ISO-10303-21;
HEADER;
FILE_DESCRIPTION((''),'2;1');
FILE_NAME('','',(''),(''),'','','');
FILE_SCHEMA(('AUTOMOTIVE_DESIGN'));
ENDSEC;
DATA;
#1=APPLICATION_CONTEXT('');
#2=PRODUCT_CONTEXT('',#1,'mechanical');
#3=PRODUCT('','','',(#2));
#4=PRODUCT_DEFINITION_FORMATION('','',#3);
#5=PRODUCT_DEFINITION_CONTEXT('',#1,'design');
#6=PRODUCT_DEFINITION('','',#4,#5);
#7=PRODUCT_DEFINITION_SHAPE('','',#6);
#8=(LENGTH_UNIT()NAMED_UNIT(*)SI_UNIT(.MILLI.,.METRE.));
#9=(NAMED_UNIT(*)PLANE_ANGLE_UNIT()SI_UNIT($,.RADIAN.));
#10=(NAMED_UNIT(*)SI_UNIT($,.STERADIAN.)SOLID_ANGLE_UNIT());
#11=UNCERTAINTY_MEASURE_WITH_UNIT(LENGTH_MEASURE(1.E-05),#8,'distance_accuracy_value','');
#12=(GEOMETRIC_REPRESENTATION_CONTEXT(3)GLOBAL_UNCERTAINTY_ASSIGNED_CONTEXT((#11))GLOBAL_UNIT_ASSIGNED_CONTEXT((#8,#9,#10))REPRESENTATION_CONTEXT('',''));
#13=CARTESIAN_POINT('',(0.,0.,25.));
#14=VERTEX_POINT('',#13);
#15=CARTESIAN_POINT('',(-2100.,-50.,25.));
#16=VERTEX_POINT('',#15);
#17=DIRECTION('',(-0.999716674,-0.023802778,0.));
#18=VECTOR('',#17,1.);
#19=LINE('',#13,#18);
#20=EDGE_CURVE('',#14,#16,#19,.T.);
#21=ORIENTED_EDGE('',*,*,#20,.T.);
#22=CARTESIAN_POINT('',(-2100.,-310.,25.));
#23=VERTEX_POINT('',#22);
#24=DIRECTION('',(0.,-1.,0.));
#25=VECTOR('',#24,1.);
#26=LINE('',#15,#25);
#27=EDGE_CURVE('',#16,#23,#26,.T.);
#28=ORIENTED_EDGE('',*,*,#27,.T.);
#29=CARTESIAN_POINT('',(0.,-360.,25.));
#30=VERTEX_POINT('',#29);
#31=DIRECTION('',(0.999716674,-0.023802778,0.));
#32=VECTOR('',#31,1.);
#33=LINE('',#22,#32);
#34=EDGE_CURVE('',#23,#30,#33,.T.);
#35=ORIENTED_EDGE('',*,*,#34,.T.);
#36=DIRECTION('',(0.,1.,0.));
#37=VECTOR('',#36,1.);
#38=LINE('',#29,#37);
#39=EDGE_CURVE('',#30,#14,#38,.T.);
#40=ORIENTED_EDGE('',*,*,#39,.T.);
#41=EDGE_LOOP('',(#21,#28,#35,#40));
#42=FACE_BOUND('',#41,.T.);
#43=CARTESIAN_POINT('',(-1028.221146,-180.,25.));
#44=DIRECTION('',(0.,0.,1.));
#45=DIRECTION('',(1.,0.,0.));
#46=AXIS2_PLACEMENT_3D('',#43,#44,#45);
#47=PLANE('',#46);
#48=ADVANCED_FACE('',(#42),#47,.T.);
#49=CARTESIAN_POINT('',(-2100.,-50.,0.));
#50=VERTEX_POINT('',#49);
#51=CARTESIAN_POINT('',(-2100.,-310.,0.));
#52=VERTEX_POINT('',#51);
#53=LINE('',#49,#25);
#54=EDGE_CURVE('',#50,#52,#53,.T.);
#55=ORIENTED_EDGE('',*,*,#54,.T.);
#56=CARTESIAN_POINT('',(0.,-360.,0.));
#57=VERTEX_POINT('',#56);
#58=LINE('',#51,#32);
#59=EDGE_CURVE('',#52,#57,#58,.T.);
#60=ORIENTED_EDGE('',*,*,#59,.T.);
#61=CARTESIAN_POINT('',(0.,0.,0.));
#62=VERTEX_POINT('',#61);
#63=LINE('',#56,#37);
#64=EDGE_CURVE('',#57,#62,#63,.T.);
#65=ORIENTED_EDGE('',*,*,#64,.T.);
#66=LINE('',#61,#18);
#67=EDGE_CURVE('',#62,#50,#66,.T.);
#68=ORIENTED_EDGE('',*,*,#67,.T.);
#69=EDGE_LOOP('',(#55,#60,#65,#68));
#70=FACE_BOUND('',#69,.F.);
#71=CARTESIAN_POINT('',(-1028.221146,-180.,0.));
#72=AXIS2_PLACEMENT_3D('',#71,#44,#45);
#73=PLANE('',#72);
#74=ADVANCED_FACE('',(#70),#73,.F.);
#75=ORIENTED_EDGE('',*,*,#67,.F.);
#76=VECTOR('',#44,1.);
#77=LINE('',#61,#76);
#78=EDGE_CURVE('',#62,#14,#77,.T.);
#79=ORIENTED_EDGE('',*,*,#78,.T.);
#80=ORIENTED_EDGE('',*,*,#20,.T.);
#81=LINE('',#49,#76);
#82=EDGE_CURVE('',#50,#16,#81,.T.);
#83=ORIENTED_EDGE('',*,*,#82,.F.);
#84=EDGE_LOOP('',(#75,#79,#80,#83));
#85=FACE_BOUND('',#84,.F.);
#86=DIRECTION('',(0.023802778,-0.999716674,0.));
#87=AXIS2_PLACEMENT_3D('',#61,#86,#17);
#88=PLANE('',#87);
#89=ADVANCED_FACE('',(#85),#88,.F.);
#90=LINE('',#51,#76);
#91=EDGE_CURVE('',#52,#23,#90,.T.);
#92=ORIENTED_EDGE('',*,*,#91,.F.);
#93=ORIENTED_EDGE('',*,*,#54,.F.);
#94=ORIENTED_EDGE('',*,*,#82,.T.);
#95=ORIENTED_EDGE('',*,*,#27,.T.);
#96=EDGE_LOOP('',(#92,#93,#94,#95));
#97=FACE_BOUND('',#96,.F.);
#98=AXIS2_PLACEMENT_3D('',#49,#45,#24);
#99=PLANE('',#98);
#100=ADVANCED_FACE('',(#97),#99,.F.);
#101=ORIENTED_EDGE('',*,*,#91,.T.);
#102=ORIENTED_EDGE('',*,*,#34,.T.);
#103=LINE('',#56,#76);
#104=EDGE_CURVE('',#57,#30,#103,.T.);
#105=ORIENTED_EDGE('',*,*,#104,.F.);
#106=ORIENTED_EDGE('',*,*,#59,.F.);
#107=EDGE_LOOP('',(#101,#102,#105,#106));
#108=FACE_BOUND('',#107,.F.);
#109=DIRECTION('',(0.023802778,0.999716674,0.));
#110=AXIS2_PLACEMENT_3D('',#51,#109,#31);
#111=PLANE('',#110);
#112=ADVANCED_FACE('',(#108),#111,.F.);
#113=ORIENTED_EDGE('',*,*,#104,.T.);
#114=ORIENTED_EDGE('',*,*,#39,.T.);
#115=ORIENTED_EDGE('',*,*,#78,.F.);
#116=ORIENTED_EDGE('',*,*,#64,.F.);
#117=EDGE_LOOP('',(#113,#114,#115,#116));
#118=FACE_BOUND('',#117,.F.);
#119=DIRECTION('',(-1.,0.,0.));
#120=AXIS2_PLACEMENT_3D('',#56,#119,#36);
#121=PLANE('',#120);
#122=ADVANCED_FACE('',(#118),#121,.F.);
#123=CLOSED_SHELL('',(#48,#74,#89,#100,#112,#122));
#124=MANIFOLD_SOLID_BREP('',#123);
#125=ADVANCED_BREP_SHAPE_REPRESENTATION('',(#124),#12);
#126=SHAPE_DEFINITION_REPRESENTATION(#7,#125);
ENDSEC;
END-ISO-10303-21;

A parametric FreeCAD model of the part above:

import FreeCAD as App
import Part
import Sketcher

V = App.Vector

doc = App.newDocument("Part")
body = doc.addObject("PartDesign::Body", "Body")

# Sketch on XY plane
sketch1 = doc.addObject("Sketcher::SketchObject", "Sketch")
body.addObject(sketch1)
sketch1.AttachmentSupport = (doc.XY_Plane, [""])
sketch1.MapMode = "FlatFace"
sketch1.addGeometry(Part.LineSegment(V(0, -360, 0), V(0, 0, 0)), False)
sketch1.addGeometry(Part.LineSegment(V(0, 0, 0), V(-2100, -50, 0)), False)
sketch1.addGeometry(Part.LineSegment(V(-2100, -50, 0), V(-2100, -310, 0)), False)
sketch1.addGeometry(Part.LineSegment(V(-2100, -310, 0), V(0, -360, 0)), False)
sketch1.addConstraint(Sketcher.Constraint("Coincident", 0, 2, 1, 1))
sketch1.addConstraint(Sketcher.Constraint("Coincident", 1, 2, 2, 1))
sketch1.addConstraint(Sketcher.Constraint("Coincident", 2, 2, 3, 1))
sketch1.addConstraint(Sketcher.Constraint("Coincident", 3, 2, 0, 1))
sketch1.addConstraint(Sketcher.Constraint("Vertical", 0))
sketch1.addConstraint(Sketcher.Constraint("Vertical", 2))
sketch1.addConstraint(Sketcher.Constraint("Coincident", 0, 2, -1, 1))
sketch1.addConstraint(Sketcher.Constraint("Equal", 1, 3))
sketch1.addConstraint(Sketcher.Constraint("DistanceY", 0, 1, 0, 2, 360.0))
sketch1.addConstraint(Sketcher.Constraint("DistanceY", 2, 2, 2, 1, 260.0))
sketch1.addConstraint(Sketcher.Constraint("DistanceX", 1, 2, -1, 1, 2100.0))
pad1 = doc.addObject("PartDesign::Pad", "Pad")
body.addObject(pad1)
pad1.Profile = sketch1
pad1.Length = 25
body2 = doc.addObject("PartDesign::Body", "Body001")

# Sketch on XY plane
sketch2 = doc.addObject("Sketcher::SketchObject", "Sketch001")
body2.addObject(sketch2)
sketch2.AttachmentSupport = (doc.getObject("XY_Plane001"), [""])
sketch2.MapMode = "FlatFace"
sketch2.AttachmentOffset = App.Placement(V(0, 0, 25), App.Rotation())
sketch2.addGeometry(Part.LineSegment(V(0, 0, 0), V(0, -360, 0)), False)
sketch2.addGeometry(Part.LineSegment(V(0, -360, 0), V(33, -909, 0)), False)
sketch2.addGeometry(Part.LineSegment(V(33, -909, 0), V(104, -1329, 0)), False)
sketch2.addGeometry(Part.LineSegment(V(104, -1329, 0), V(234, -1329, 0)), False)
sketch2.addGeometry(Part.LineSegment(V(234, -1329, 0), V(194, 1468, 0)), False)
sketch2.addGeometry(Part.LineSegment(V(194, 1468, 0), V(68, 1411, 0)), False)
sketch2.addGeometry(Part.LineSegment(V(68, 1411, 0), V(-87, 1199, 0)), False)
sketch2.addGeometry(Part.LineSegment(V(-87, 1199, 0), V(-128, 896, 0)), False)
sketch2.addGeometry(Part.LineSegment(V(-128, 896, 0), V(-80, 367, 0)), False)
sketch2.addGeometry(Part.LineSegment(V(-80, 367, 0), V(0, 0, 0)), False)
sketch2.addGeometry(Part.LineSegment(V(234, -1329, 0), V(194, 1468, 0)), True)  # axis
sketch2.addConstraint(Sketcher.Constraint("Coincident", 0, 2, 1, 1))
sketch2.addConstraint(Sketcher.Constraint("Coincident", 1, 2, 2, 1))
sketch2.addConstraint(Sketcher.Constraint("Coincident", 2, 2, 3, 1))
sketch2.addConstraint(Sketcher.Constraint("Coincident", 3, 2, 4, 1))
sketch2.addConstraint(Sketcher.Constraint("Coincident", 4, 2, 5, 1))
sketch2.addConstraint(Sketcher.Constraint("Coincident", 5, 2, 6, 1))
sketch2.addConstraint(Sketcher.Constraint("Coincident", 6, 2, 7, 1))
sketch2.addConstraint(Sketcher.Constraint("Coincident", 7, 2, 8, 1))
sketch2.addConstraint(Sketcher.Constraint("Coincident", 8, 2, 9, 1))
sketch2.addConstraint(Sketcher.Constraint("Coincident", 9, 2, 0, 1))
sketch2.addConstraint(Sketcher.Constraint("Vertical", 0))
sketch2.addConstraint(Sketcher.Constraint("Horizontal", 3))
sketch2.addConstraint(Sketcher.Constraint("Coincident", 9, 2, -1, 1))
sketch2.addConstraint(Sketcher.Constraint("Coincident", 10, 1, 3, 2))
sketch2.addConstraint(Sketcher.Constraint("Coincident", 10, 2, 4, 2))
sketch2.addConstraint(Sketcher.Constraint("DistanceY", 0, 2, 0, 1, 360.0))
sketch2.addConstraint(Sketcher.Constraint("DistanceX", 1, 2, 2, 2, 70.999999))
sketch2.addConstraint(Sketcher.Constraint("DistanceX", 8, 2, -1, 1, 80.073699))
sketch2.addConstraint(Sketcher.Constraint("Distance", 4, 2796.439949))
sketch2.addConstraint(Sketcher.Constraint("Distance", 6, 262.858619))
sketch2.addConstraint(Sketcher.Constraint("Distance", 9, 375.830739))
sketch2.addConstraint(Sketcher.Constraint("DistanceX", 3, 1, 3, 2, 130.166583))
sketch2.addConstraint(Sketcher.Constraint("DistanceY", 1, 2, -1, 1, 908.531258))
sketch2.addConstraint(Sketcher.Constraint("DistanceX", -1, 1, 3, 2, 234.010369))
sketch2.addConstraint(Sketcher.Constraint("DistanceY", -1, 1, 5, 2, 1411.169171))
sketch2.addConstraint(Sketcher.Constraint("DistanceY", -1, 1, 6, 2, 1199.26095))
sketch2.addConstraint(Sketcher.Constraint("DistanceY", -1, 1, 7, 2, 896.150231))
sketch2.addConstraint(Sketcher.Constraint("DistanceX", 1, 2, 4, 2, 161.13722))
sketch2.addConstraint(Sketcher.Constraint("DistanceY", 1, 2, 4, 2, 2376.070092))
sketch2.addConstraint(Sketcher.Constraint("DistanceX", 5, 2, 4, 2, 125.723459))
sketch2.addConstraint(Sketcher.Constraint("DistanceX", 7, 2, 6, 2, 40.813692))
revolution = doc.addObject("PartDesign::Revolution", "Revolution")
body2.addObject(revolution)
revolution.Profile = sketch2
revolution.ReferenceAxis = (sketch2, ["Axis0"])
revolution.Angle = 360
body2.Visibility = False

doc.recompute()
